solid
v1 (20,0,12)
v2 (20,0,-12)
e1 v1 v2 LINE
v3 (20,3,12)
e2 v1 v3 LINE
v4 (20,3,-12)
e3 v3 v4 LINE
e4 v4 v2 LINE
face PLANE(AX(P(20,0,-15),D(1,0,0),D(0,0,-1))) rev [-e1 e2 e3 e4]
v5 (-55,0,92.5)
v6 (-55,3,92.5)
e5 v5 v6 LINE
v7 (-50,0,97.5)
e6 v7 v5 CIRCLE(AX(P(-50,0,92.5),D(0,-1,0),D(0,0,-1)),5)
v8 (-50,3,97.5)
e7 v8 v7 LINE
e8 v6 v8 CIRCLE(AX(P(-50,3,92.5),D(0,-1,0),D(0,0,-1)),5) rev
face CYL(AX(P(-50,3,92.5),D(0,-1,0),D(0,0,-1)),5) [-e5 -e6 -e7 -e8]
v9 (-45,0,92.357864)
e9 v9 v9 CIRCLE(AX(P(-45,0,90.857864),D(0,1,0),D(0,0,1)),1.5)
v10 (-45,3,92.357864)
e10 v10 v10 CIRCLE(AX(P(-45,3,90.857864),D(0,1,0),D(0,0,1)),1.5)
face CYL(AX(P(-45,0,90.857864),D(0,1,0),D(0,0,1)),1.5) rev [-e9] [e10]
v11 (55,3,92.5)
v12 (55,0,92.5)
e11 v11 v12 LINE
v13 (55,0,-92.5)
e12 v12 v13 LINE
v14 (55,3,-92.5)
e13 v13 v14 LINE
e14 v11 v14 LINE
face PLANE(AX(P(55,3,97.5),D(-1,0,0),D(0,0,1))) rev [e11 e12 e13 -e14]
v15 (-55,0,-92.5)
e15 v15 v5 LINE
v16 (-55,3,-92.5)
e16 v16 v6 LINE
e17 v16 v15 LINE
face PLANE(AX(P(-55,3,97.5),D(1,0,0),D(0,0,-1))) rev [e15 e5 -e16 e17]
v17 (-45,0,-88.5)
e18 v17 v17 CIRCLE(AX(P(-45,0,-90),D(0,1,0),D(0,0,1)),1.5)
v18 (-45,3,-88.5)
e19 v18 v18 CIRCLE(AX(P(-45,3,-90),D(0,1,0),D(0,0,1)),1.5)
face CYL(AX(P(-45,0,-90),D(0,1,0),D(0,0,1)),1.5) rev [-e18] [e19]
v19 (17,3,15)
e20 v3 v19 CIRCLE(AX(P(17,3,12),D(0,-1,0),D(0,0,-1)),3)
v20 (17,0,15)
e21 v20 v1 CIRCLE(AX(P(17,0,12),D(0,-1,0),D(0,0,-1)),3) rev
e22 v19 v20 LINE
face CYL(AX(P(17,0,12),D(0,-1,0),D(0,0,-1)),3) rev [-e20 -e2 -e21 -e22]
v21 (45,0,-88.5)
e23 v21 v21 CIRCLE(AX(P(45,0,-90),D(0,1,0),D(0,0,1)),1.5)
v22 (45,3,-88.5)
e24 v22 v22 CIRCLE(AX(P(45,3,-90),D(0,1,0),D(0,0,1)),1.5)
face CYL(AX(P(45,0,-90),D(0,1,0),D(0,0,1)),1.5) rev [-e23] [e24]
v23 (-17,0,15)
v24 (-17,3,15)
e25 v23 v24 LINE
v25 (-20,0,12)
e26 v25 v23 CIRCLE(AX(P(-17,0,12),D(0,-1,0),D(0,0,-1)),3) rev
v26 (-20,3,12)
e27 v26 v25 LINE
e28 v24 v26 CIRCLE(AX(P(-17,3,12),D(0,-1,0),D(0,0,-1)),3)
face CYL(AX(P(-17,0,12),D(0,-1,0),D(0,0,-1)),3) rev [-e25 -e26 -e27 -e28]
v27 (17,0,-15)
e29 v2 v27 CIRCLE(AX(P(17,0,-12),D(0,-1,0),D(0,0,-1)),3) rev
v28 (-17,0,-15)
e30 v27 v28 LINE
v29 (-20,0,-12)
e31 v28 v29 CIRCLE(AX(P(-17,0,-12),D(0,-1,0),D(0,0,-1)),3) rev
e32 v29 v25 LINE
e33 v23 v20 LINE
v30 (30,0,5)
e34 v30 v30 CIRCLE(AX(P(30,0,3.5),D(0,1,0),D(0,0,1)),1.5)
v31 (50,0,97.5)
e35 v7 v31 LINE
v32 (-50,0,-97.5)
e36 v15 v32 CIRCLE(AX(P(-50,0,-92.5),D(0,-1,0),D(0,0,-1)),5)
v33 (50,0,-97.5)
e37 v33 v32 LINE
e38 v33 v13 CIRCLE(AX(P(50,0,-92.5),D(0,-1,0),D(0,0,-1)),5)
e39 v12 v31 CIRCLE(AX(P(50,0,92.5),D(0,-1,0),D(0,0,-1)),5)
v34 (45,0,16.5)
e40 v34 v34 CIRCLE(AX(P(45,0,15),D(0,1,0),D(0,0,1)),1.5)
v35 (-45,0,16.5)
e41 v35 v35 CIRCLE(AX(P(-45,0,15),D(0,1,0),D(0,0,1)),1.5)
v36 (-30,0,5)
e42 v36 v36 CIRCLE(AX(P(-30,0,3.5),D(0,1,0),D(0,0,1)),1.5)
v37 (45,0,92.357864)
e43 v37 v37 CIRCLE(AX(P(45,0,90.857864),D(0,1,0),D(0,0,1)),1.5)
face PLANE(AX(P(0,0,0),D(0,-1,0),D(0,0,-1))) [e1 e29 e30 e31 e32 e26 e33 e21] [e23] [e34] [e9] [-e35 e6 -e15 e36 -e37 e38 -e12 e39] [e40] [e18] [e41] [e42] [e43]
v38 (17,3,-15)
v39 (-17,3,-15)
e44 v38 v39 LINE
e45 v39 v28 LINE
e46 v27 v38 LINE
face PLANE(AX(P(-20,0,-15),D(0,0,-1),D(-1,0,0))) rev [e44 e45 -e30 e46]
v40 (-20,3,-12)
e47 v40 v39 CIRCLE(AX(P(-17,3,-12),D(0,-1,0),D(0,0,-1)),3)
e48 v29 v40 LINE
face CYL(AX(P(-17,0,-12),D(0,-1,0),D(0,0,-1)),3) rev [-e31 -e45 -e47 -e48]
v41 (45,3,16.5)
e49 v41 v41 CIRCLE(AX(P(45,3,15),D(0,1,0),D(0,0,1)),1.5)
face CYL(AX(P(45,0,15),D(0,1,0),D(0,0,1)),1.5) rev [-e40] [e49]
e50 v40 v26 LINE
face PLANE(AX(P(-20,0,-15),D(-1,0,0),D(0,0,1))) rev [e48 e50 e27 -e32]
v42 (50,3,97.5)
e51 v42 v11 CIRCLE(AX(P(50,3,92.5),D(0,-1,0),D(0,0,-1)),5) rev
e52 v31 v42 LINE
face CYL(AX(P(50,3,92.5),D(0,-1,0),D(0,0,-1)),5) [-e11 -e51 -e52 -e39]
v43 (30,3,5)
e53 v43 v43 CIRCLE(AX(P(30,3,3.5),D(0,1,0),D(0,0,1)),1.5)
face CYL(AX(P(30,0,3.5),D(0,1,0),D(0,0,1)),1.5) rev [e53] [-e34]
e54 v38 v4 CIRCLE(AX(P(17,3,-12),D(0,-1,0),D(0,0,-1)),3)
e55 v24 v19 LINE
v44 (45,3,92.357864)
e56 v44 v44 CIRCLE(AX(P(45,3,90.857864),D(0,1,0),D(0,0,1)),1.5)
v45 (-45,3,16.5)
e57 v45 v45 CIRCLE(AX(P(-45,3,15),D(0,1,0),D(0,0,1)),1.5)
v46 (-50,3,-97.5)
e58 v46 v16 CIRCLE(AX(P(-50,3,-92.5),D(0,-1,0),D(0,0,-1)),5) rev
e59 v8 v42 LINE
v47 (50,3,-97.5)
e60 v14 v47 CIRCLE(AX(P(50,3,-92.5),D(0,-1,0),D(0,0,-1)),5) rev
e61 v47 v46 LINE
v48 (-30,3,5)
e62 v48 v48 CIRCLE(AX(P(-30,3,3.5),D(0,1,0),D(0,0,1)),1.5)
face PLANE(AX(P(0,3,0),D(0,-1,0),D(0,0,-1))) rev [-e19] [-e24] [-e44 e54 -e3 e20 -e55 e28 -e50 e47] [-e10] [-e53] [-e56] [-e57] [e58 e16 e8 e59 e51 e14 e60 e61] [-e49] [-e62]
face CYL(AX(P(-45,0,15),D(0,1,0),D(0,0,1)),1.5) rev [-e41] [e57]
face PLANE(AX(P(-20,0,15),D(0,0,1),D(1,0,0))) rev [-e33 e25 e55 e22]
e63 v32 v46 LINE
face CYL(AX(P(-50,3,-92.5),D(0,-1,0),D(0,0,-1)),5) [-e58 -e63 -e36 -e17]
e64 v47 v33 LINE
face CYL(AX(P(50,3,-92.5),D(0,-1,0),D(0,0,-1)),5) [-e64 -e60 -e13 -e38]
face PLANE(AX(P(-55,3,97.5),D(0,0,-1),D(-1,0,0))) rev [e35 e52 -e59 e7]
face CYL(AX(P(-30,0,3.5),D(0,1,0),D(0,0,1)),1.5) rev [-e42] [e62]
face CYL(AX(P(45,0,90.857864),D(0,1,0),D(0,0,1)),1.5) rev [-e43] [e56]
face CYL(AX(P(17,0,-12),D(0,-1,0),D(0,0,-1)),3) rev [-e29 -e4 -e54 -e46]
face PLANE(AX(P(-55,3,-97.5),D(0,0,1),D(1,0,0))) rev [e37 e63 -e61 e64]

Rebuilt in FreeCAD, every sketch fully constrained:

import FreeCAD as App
import Part
import Sketcher
Q = App.Units.Quantity


def edges_at(feature, points):
    """Names of the edges that pass closest to the given points."""
    edges = feature.Shape.Edges
    near = lambda p: min(range(len(edges)), key=lambda i: edges[i].distToShape(Part.Vertex(*p))[0])
    return sorted({f"Edge{near(p) + 1}" for p in points})

doc = App.newDocument("Part")
body = doc.addObject("PartDesign::Body", "Body")

# Sketch on XZ plane
sketch1 = doc.addObject("Sketcher::SketchObject", "Sketch")
body.addObject(sketch1)
sketch1.AttachmentSupport = (doc.XZ_Plane, [""])
sketch1.MapMode = "FlatFace"
sketch1.addGeometry(Part.LineSegment(App.Vector(-55, -98, 0), App.Vector(-55, 98, 0)), False)
sketch1.addGeometry(Part.LineSegment(App.Vector(-55, 98, 0), App.Vector(55, 98, 0)), False)
sketch1.addGeometry(Part.LineSegment(App.Vector(55, 98, 0), App.Vector(55, -98, 0)), False)
sketch1.addGeometry(Part.LineSegment(App.Vector(55, -98, 0), App.Vector(-55, -98, 0)), False)
sketch1.addConstraint(Sketcher.Constraint("Coincident", 0, 2, 1, 1))
sketch1.addConstraint(Sketcher.Constraint("Coincident", 1, 2, 2, 1))
sketch1.addConstraint(Sketcher.Constraint("Coincident", 2, 2, 3, 1))
sketch1.addConstraint(Sketcher.Constraint("Coincident", 3, 2, 0, 1))
sketch1.addConstraint(Sketcher.Constraint("Vertical", 0))
sketch1.addConstraint(Sketcher.Constraint("Horizontal", 1))
sketch1.addConstraint(Sketcher.Constraint("Vertical", 2))
sketch1.addConstraint(Sketcher.Constraint("Horizontal", 3))
sketch1.addConstraint(Sketcher.Constraint("Symmetric", 0, 2, 2, 2, -1, 1))
sketch1.addConstraint(Sketcher.Constraint("DistanceX", 1, 1, 1, 2, Q("110 mm")))
sketch1.addConstraint(Sketcher.Constraint("DistanceY", 0, 1, 0, 2, Q("195 mm")))
pad1 = doc.addObject("PartDesign::Pad", "Pad")
body.addObject(pad1)
pad1.Profile = sketch1
pad1.Length = 3
pad1.Reversed = True
doc.recompute()

fillet = doc.addObject("PartDesign::Fillet", "Fillet")
body.addObject(fillet)
fillet.Base = (pad1, edges_at(pad1, [
    (55, 1.5, 97.5),
    (-55, 1.5, 97.5),
    (-55, 1.5, -97.5),
    (55, 1.5, -97.5),
]))
fillet.Radius = 5

# Sketch on XZ plane
sketch2 = doc.addObject("Sketcher::SketchObject", "Sketch001")
body.addObject(sketch2)
sketch2.AttachmentSupport = (doc.XZ_Plane, [""])
sketch2.MapMode = "FlatFace"
sketch2.AttachmentOffset = App.Placement(App.Vector(0, 0, -3), App.Rotation())
sketch2.addGeometry(Part.Circle(App.Vector(-45, 90.9, 0), App.Vector(0, 0, 1), 1.5), False)
sketch2.addGeometry(Part.Circle(App.Vector(-45, 15, 0), App.Vector(0, 0, 1), 1.5), False)
sketch2.addGeometry(Part.Circle(App.Vector(-45, -90, 0), App.Vector(0, 0, 1), 1.5), False)
sketch2.addGeometry(Part.Circle(App.Vector(45, -90, 0), App.Vector(0, 0, 1), 1.5), False)
sketch2.addGeometry(Part.Circle(App.Vector(45, 15, 0), App.Vector(0, 0, 1), 1.5), False)
sketch2.addGeometry(Part.Circle(App.Vector(45, 90.9, 0), App.Vector(0, 0, 1), 1.5), False)
sketch2.addGeometry(Part.Circle(App.Vector(-30, 3.5, 0), App.Vector(0, 0, 1), 1.5), False)
sketch2.addGeometry(Part.Circle(App.Vector(30, 3.5, 0), App.Vector(0, 0, 1), 1.5), False)
sketch2.addConstraint(Sketcher.Constraint("Equal", 0, 1))
sketch2.addConstraint(Sketcher.Constraint("Equal", 1, 2))
sketch2.addConstraint(Sketcher.Constraint("Equal", 2, 3))
sketch2.addConstraint(Sketcher.Constraint("Equal", 3, 4))
sketch2.addConstraint(Sketcher.Constraint("Equal", 4, 5))
sketch2.addConstraint(Sketcher.Constraint("Equal", 5, 6))
sketch2.addConstraint(Sketcher.Constraint("Equal", 6, 7))
sketch2.addConstraint(Sketcher.Constraint("Symmetric", 2, 3, 3, 3, -2))
sketch2.addConstraint(Sketcher.Constraint("Symmetric", 1, 3, 4, 3, -2))
sketch2.addConstraint(Sketcher.Constraint("Symmetric", 0, 3, 5, 3, -2))
sketch2.addConstraint(Sketcher.Constraint("Symmetric", 6, 3, 7, 3, -2))
sketch2.addConstraint(Sketcher.Constraint("Vertical", 0, 3, 1, 3))
sketch2.addConstraint(Sketcher.Constraint("Vertical", 1, 3, 2, 3))
sketch2.addConstraint(Sketcher.Constraint("Diameter", 0, Q("3 mm")))
sketch2.addConstraint(Sketcher.Constraint("DistanceX", 0, 3, -1, 1, Q("45 mm")))
sketch2.addConstraint(Sketcher.Constraint("DistanceY", -1, 1, 1, 3, Q("15 mm")))
sketch2.addConstraint(Sketcher.Constraint("DistanceY", 2, 3, -1, 1, Q("90 mm")))
sketch2.addConstraint(Sketcher.Constraint("DistanceX", 6, 3, -1, 1, Q("30 mm")))
sketch2.addConstraint(Sketcher.Constraint("DistanceY", -1, 1, 6, 3, Q("3.5 mm")))
sketch2.addConstraint(Sketcher.Constraint("DistanceY", -1, 1, 0, 3, Q("90.857864 mm")))
pocket1 = doc.addObject("PartDesign::Pocket", "Pocket")
body.addObject(pocket1)
pocket1.Profile = sketch2
pocket1.Length = 3
pocket1.Reversed = True

# Sketch on XZ plane
sketch3 = doc.addObject("Sketcher::SketchObject", "Sketch002")
body.addObject(sketch3)
sketch3.AttachmentSupport = (doc.XZ_Plane, [""])
sketch3.MapMode = "FlatFace"
sketch3.AttachmentOffset = App.Placement(App.Vector(0, 0, -3), App.Rotation())
sketch3.addGeometry(Part.LineSegment(App.Vector(-20, -15, 0), App.Vector(-20, 15, 0)), False)
sketch3.addGeometry(Part.LineSegment(App.Vector(-20, 15, 0), App.Vector(20, 15, 0)), False)
sketch3.addGeometry(Part.LineSegment(App.Vector(20, 15, 0), App.Vector(20, -15, 0)), False)
sketch3.addGeometry(Part.LineSegment(App.Vector(20, -15, 0), App.Vector(-20, -15, 0)), False)
sketch3.addConstraint(Sketcher.Constraint("Coincident", 0, 2, 1, 1))
sketch3.addConstraint(Sketcher.Constraint("Coincident", 1, 2, 2, 1))
sketch3.addConstraint(Sketcher.Constraint("Coincident", 2, 2, 3, 1))
sketch3.addConstraint(Sketcher.Constraint("Coincident", 3, 2, 0, 1))
sketch3.addConstraint(Sketcher.Constraint("Vertical", 0))
sketch3.addConstraint(Sketcher.Constraint("Horizontal", 1))
sketch3.addConstraint(Sketcher.Constraint("Vertical", 2))
sketch3.addConstraint(Sketcher.Constraint("Horizontal", 3))
sketch3.addConstraint(Sketcher.Constraint("Symmetric", 0, 2, 2, 2, -1, 1))
sketch3.addConstraint(Sketcher.Constraint("DistanceX", 1, 1, 1, 2, Q("40 mm")))
sketch3.addConstraint(Sketcher.Constraint("DistanceY", 0, 1, 0, 2, Q("30 mm")))
pocket2 = doc.addObject("PartDesign::Pocket", "Pocket001")
body.addObject(pocket2)
pocket2.Profile = sketch3
pocket2.Length = 3
pocket2.Reversed = True
doc.recompute()

fillet2 = doc.addObject("PartDesign::Fillet", "Fillet001")
body.addObject(fillet2)
fillet2.Base = (pocket2, edges_at(pocket2, [
    (20, 1.5, -15),
    (20, 1.5, 15),
    (-20, 1.5, 15),
    (-20, 1.5, -15),
]))
fillet2.Radius = 3

doc.recompute()
